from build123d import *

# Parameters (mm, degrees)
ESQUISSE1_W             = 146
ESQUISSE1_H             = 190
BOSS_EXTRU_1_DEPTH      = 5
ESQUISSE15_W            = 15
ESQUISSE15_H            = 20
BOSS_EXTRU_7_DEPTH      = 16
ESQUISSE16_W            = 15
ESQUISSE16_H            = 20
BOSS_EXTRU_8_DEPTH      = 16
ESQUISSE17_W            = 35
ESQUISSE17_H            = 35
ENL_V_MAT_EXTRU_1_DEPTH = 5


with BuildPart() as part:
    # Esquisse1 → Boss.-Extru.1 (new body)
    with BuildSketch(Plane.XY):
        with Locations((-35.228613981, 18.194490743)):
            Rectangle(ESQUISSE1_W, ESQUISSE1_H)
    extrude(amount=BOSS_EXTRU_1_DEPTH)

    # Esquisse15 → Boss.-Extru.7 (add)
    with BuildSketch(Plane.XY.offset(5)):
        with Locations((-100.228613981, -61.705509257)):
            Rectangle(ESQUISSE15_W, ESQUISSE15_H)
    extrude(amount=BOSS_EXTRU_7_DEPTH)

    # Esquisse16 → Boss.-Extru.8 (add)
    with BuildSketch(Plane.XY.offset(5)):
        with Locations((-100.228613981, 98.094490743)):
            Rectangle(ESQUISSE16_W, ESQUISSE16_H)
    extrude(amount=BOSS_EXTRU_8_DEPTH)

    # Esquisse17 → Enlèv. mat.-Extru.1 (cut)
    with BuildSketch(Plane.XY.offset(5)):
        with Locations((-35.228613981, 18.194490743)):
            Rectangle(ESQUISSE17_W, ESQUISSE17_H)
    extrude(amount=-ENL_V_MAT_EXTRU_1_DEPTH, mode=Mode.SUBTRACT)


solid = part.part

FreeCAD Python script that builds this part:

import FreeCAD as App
import Part
import Sketcher

V = App.Vector
Q = App.Units.Quantity

doc = App.newDocument("Part")
body = doc.addObject("PartDesign::Body", "Body")

# Sketch on XY plane
sketch1 = body.newObject("Sketcher::SketchObject", "Sketch")
sketch1.AttachmentSupport = (doc.getObject("XY_Plane"), [""])
sketch1.MapMode = "FlatFace"
sketch1.addGeometry([
    Part.LineSegment(V(-108.228614, 113.194491, 0), V(-108.228614, -76.805509, 0)),
    Part.LineSegment(V(-108.228614, -76.805509, 0), V(37.771386, -76.805509, 0)),
    Part.LineSegment(V(37.771386, -76.805509, 0), V(37.771386, 113.194491, 0)),
    Part.LineSegment(V(37.771386, 113.194491, 0), V(-108.228614, 113.194491, 0)),
], False)
sketch1.addConstraint([
    Sketcher.Constraint("Coincident", 0, 2, 1, 1),
    Sketcher.Constraint("Coincident", 1, 2, 2, 1),
    Sketcher.Constraint("Coincident", 2, 2, 3, 1),
    Sketcher.Constraint("Coincident", 3, 2, 0, 1),
    Sketcher.Constraint("Vertical", 0),
    Sketcher.Constraint("Horizontal", 1),
    Sketcher.Constraint("Vertical", 2),
    Sketcher.Constraint("Horizontal", 3),
    Sketcher.Constraint("DistanceX", 1, 1, 1, 2, Q("146 mm")),
    Sketcher.Constraint("DistanceY", 0, 2, 0, 1, Q("190 mm")),
    Sketcher.Constraint("DistanceY", 0, 2, -1, 1, Q("76.805509 mm")),
    Sketcher.Constraint("DistanceX", 0, 2, -1, 1, Q("108.228614 mm")),
])
pad1 = body.newObject("PartDesign::Pad", "Pad")
pad1.Profile = sketch1
pad1.Length = 5

# Sketch on XY plane
sketch2 = body.newObject("Sketcher::SketchObject", "Sketch001")
sketch2.AttachmentSupport = (doc.getObject("XY_Plane"), [""])
sketch2.MapMode = "FlatFace"
sketch2.AttachmentOffset = App.Placement(V(0, 0, 5), App.Rotation())
sketch2.addGeometry([
    Part.LineSegment(V(-107.728614, -51.705509, 0), V(-107.728614, -71.705509, 0)),
    Part.LineSegment(V(-107.728614, -71.705509, 0), V(-92.728614, -71.705509, 0)),
    Part.LineSegment(V(-92.728614, -71.705509, 0), V(-92.728614, -51.705509, 0)),
    Part.LineSegment(V(-92.728614, -51.705509, 0), V(-107.728614, -51.705509, 0)),
], False)
sketch2.addConstraint([
    Sketcher.Constraint("Coincident", 0, 2, 1, 1),
    Sketcher.Constraint("Coincident", 1, 2, 2, 1),
    Sketcher.Constraint("Coincident", 2, 2, 3, 1),
    Sketcher.Constraint("Coincident", 3, 2, 0, 1),
    Sketcher.Constraint("Vertical", 0),
    Sketcher.Constraint("Horizontal", 1),
    Sketcher.Constraint("Vertical", 2),
    Sketcher.Constraint("Horizontal", 3),
    Sketcher.Constraint("DistanceX", 1, 1, 1, 2, Q("15 mm")),
    Sketcher.Constraint("DistanceY", 0, 2, 0, 1, Q("20 mm")),
    Sketcher.Constraint("DistanceY", 0, 2, -1, 1, Q("71.705509 mm")),
    Sketcher.Constraint("DistanceX", 0, 2, -1, 1, Q("107.728614 mm")),
])
pad2 = body.newObject("PartDesign::Pad", "Pad001")
pad2.Profile = sketch2
pad2.Length = 16

# Sketch on XY plane
sketch3 = body.newObject("Sketcher::SketchObject", "Sketch002")
sketch3.AttachmentSupport = (doc.getObject("XY_Plane"), [""])
sketch3.MapMode = "FlatFace"
sketch3.AttachmentOffset = App.Placement(V(0, 0, 5), App.Rotation())
sketch3.addGeometry([
    Part.LineSegment(V(-107.728614, 108.094491, 0), V(-107.728614, 88.094491, 0)),
    Part.LineSegment(V(-107.728614, 88.094491, 0), V(-92.728614, 88.094491, 0)),
    Part.LineSegment(V(-92.728614, 88.094491, 0), V(-92.728614, 108.094491, 0)),
    Part.LineSegment(V(-92.728614, 108.094491, 0), V(-107.728614, 108.094491, 0)),
], False)
sketch3.addConstraint([
    Sketcher.Constraint("Coincident", 0, 2, 1, 1),
    Sketcher.Constraint("Coincident", 1, 2, 2, 1),
    Sketcher.Constraint("Coincident", 2, 2, 3, 1),
    Sketcher.Constraint("Coincident", 3, 2, 0, 1),
    Sketcher.Constraint("Vertical", 0),
    Sketcher.Constraint("Horizontal", 1),
    Sketcher.Constraint("Vertical", 2),
    Sketcher.Constraint("Horizontal", 3),
    Sketcher.Constraint("DistanceX", 1, 1, 1, 2, Q("15 mm")),
    Sketcher.Constraint("DistanceY", 0, 2, 0, 1, Q("20 mm")),
    Sketcher.Constraint("DistanceY", -1, 1, 0, 2, Q("88.094491 mm")),
    Sketcher.Constraint("DistanceX", 0, 2, -1, 1, Q("107.728614 mm")),
])
pad3 = body.newObject("PartDesign::Pad", "Pad002")
pad3.Profile = sketch3
pad3.Length = 16

# Sketch on XY plane
sketch4 = body.newObject("Sketcher::SketchObject", "Sketch003")
sketch4.AttachmentSupport = (doc.getObject("XY_Plane"), [""])
sketch4.MapMode = "FlatFace"
sketch4.AttachmentOffset = App.Placement(V(0, 0, 5), App.Rotation())
sketch4.addGeometry([
    Part.LineSegment(V(-52.728614, 35.694491, 0), V(-52.728614, 0.694491, 0)),
    Part.LineSegment(V(-52.728614, 0.694491, 0), V(-17.728614, 0.694491, 0)),
    Part.LineSegment(V(-17.728614, 0.694491, 0), V(-17.728614, 35.694491, 0)),
    Part.LineSegment(V(-17.728614, 35.694491, 0), V(-52.728614, 35.694491, 0)),
], False)
sketch4.addConstraint([
    Sketcher.Constraint("Coincident", 0, 2, 1, 1),
    Sketcher.Constraint("Coincident", 1, 2, 2, 1),
    Sketcher.Constraint("Coincident", 2, 2, 3, 1),
    Sketcher.Constraint("Coincident", 3, 2, 0, 1),
    Sketcher.Constraint("Vertical", 0),
    Sketcher.Constraint("Horizontal", 1),
    Sketcher.Constraint("Vertical", 2),
    Sketcher.Constraint("Horizontal", 3),
    Sketcher.Constraint("Equal", 3, 0),
    Sketcher.Constraint("DistanceX", 1, 1, 1, 2, Q("35 mm")),
    Sketcher.Constraint("DistanceY", -1, 1, 0, 2, Q("0.694491 mm")),
    Sketcher.Constraint("DistanceX", 0, 2, -1, 1, Q("52.728614 mm")),
])
pocket1 = body.newObject("PartDesign::Pocket", "Pocket")
pocket1.Profile = sketch4
pocket1.Length = 5

doc.recompute()
